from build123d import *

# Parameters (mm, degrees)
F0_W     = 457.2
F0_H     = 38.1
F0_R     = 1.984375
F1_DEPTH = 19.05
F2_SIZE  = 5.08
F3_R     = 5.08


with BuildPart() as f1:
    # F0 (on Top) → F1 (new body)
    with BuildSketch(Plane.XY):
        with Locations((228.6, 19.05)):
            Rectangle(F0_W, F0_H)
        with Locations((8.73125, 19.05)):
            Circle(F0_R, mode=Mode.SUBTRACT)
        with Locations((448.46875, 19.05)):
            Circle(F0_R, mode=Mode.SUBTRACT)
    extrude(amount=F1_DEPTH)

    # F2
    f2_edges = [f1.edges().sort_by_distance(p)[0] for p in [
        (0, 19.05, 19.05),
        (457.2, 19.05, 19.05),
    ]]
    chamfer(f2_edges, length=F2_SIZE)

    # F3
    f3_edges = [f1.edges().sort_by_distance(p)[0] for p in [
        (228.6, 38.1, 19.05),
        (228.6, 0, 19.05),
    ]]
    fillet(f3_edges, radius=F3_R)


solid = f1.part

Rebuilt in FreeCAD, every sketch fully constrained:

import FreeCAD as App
import Part
import Sketcher
from FreeCAD import Vector
Q = App.Units.Quantity


def edges_at(feature, points):
    """Names of the edges that pass closest to the given points."""
    edges = feature.Shape.Edges
    near = lambda p: min(range(len(edges)), key=lambda i: edges[i].distToShape(Part.Vertex(*p))[0])
    return sorted({f"Edge{near(p) + 1}" for p in points})


def add_polygon(sketch, points):
    """Adds a closed chain of lines whose ends are joined by coincident constraints."""
    first, n = sketch.GeometryCount, len(points)
    for a, b in zip(points, points[1:] + points[:1]):
        sketch.addGeometry(Part.LineSegment(App.Vector(*a, 0), App.Vector(*b, 0)), False)
    for i in range(n):
        sketch.addConstraint(Sketcher.Constraint("Coincident", first + i, 2, first + (i + 1) % n, 1))

doc = App.newDocument("Part")
body = doc.addObject("PartDesign::Body", "Body")

# Sketch on XY plane
sketch1 = body.newObject("Sketcher::SketchObject", "Sketch")
sketch1.AttachmentSupport = (doc.getObject("XY_Plane"), [""])
sketch1.MapMode = "FlatFace"
add_polygon(sketch1, [(0, 38.1), (0, 0), (457.2, 0), (457.2, 38.1)])  # lines 0-3
sketch1.addGeometry(Part.Circle(Vector(8.73125, 19.05, 0), Vector(0, 0, 1), 1.984375), False)  # 4
sketch1.addGeometry(Part.Circle(Vector(448.46875, 19.05, 0), Vector(0, 0, 1), 1.984375), False)  # 5
sketch1.addConstraint(Sketcher.Constraint("Vertical", 0))
sketch1.addConstraint(Sketcher.Constraint("Horizontal", 1))
sketch1.addConstraint(Sketcher.Constraint("Vertical", 2))
sketch1.addConstraint(Sketcher.Constraint("Horizontal", 3))
sketch1.addConstraint(Sketcher.Constraint("Coincident", 0, 2, -1, 1))
sketch1.addConstraint(Sketcher.Constraint("Equal", 4, 5))
sketch1.addConstraint(Sketcher.Constraint("Horizontal", 4, 3, 5, 3))
sketch1.addConstraint(Sketcher.Constraint("DistanceX", 1, 1, 1, 2, Q("18 in")))
sketch1.addConstraint(Sketcher.Constraint("Diameter", 4, Q("0.15625 in")))
sketch1.addConstraint(Sketcher.Constraint("DistanceY", 0, 2, 0, 1, Q("1.5 in")))
sketch1.addConstraint(Sketcher.Constraint("DistanceY", -1, 1, 4, 3, Q("0.75 in")))
sketch1.addConstraint(Sketcher.Constraint("DistanceX", -1, 1, 4, 3, Q("0.34375 in")))
sketch1.addConstraint(Sketcher.Constraint("DistanceX", -1, 1, 5, 3, Q("17.65625 in")))
pad1 = body.newObject("PartDesign::Pad", "Pad")
pad1.Profile = sketch1
pad1.Length = Q("0.75 in")
doc.recompute()

chamfer = body.newObject("PartDesign::Chamfer", "Chamfer")
chamfer.Base = (pad1, edges_at(pad1, [(0, 19.05, 19.05), (457.2, 19.05, 19.05)]))
chamfer.Size = Q("0.2 in")
doc.recompute()

fillet = body.newObject("PartDesign::Fillet", "Fillet")
fillet.Base = (chamfer, edges_at(chamfer, [(228.6, 38.1, 19.05), (228.6, 0, 19.05)]))
fillet.Radius = Q("0.2 in")

doc.recompute()
